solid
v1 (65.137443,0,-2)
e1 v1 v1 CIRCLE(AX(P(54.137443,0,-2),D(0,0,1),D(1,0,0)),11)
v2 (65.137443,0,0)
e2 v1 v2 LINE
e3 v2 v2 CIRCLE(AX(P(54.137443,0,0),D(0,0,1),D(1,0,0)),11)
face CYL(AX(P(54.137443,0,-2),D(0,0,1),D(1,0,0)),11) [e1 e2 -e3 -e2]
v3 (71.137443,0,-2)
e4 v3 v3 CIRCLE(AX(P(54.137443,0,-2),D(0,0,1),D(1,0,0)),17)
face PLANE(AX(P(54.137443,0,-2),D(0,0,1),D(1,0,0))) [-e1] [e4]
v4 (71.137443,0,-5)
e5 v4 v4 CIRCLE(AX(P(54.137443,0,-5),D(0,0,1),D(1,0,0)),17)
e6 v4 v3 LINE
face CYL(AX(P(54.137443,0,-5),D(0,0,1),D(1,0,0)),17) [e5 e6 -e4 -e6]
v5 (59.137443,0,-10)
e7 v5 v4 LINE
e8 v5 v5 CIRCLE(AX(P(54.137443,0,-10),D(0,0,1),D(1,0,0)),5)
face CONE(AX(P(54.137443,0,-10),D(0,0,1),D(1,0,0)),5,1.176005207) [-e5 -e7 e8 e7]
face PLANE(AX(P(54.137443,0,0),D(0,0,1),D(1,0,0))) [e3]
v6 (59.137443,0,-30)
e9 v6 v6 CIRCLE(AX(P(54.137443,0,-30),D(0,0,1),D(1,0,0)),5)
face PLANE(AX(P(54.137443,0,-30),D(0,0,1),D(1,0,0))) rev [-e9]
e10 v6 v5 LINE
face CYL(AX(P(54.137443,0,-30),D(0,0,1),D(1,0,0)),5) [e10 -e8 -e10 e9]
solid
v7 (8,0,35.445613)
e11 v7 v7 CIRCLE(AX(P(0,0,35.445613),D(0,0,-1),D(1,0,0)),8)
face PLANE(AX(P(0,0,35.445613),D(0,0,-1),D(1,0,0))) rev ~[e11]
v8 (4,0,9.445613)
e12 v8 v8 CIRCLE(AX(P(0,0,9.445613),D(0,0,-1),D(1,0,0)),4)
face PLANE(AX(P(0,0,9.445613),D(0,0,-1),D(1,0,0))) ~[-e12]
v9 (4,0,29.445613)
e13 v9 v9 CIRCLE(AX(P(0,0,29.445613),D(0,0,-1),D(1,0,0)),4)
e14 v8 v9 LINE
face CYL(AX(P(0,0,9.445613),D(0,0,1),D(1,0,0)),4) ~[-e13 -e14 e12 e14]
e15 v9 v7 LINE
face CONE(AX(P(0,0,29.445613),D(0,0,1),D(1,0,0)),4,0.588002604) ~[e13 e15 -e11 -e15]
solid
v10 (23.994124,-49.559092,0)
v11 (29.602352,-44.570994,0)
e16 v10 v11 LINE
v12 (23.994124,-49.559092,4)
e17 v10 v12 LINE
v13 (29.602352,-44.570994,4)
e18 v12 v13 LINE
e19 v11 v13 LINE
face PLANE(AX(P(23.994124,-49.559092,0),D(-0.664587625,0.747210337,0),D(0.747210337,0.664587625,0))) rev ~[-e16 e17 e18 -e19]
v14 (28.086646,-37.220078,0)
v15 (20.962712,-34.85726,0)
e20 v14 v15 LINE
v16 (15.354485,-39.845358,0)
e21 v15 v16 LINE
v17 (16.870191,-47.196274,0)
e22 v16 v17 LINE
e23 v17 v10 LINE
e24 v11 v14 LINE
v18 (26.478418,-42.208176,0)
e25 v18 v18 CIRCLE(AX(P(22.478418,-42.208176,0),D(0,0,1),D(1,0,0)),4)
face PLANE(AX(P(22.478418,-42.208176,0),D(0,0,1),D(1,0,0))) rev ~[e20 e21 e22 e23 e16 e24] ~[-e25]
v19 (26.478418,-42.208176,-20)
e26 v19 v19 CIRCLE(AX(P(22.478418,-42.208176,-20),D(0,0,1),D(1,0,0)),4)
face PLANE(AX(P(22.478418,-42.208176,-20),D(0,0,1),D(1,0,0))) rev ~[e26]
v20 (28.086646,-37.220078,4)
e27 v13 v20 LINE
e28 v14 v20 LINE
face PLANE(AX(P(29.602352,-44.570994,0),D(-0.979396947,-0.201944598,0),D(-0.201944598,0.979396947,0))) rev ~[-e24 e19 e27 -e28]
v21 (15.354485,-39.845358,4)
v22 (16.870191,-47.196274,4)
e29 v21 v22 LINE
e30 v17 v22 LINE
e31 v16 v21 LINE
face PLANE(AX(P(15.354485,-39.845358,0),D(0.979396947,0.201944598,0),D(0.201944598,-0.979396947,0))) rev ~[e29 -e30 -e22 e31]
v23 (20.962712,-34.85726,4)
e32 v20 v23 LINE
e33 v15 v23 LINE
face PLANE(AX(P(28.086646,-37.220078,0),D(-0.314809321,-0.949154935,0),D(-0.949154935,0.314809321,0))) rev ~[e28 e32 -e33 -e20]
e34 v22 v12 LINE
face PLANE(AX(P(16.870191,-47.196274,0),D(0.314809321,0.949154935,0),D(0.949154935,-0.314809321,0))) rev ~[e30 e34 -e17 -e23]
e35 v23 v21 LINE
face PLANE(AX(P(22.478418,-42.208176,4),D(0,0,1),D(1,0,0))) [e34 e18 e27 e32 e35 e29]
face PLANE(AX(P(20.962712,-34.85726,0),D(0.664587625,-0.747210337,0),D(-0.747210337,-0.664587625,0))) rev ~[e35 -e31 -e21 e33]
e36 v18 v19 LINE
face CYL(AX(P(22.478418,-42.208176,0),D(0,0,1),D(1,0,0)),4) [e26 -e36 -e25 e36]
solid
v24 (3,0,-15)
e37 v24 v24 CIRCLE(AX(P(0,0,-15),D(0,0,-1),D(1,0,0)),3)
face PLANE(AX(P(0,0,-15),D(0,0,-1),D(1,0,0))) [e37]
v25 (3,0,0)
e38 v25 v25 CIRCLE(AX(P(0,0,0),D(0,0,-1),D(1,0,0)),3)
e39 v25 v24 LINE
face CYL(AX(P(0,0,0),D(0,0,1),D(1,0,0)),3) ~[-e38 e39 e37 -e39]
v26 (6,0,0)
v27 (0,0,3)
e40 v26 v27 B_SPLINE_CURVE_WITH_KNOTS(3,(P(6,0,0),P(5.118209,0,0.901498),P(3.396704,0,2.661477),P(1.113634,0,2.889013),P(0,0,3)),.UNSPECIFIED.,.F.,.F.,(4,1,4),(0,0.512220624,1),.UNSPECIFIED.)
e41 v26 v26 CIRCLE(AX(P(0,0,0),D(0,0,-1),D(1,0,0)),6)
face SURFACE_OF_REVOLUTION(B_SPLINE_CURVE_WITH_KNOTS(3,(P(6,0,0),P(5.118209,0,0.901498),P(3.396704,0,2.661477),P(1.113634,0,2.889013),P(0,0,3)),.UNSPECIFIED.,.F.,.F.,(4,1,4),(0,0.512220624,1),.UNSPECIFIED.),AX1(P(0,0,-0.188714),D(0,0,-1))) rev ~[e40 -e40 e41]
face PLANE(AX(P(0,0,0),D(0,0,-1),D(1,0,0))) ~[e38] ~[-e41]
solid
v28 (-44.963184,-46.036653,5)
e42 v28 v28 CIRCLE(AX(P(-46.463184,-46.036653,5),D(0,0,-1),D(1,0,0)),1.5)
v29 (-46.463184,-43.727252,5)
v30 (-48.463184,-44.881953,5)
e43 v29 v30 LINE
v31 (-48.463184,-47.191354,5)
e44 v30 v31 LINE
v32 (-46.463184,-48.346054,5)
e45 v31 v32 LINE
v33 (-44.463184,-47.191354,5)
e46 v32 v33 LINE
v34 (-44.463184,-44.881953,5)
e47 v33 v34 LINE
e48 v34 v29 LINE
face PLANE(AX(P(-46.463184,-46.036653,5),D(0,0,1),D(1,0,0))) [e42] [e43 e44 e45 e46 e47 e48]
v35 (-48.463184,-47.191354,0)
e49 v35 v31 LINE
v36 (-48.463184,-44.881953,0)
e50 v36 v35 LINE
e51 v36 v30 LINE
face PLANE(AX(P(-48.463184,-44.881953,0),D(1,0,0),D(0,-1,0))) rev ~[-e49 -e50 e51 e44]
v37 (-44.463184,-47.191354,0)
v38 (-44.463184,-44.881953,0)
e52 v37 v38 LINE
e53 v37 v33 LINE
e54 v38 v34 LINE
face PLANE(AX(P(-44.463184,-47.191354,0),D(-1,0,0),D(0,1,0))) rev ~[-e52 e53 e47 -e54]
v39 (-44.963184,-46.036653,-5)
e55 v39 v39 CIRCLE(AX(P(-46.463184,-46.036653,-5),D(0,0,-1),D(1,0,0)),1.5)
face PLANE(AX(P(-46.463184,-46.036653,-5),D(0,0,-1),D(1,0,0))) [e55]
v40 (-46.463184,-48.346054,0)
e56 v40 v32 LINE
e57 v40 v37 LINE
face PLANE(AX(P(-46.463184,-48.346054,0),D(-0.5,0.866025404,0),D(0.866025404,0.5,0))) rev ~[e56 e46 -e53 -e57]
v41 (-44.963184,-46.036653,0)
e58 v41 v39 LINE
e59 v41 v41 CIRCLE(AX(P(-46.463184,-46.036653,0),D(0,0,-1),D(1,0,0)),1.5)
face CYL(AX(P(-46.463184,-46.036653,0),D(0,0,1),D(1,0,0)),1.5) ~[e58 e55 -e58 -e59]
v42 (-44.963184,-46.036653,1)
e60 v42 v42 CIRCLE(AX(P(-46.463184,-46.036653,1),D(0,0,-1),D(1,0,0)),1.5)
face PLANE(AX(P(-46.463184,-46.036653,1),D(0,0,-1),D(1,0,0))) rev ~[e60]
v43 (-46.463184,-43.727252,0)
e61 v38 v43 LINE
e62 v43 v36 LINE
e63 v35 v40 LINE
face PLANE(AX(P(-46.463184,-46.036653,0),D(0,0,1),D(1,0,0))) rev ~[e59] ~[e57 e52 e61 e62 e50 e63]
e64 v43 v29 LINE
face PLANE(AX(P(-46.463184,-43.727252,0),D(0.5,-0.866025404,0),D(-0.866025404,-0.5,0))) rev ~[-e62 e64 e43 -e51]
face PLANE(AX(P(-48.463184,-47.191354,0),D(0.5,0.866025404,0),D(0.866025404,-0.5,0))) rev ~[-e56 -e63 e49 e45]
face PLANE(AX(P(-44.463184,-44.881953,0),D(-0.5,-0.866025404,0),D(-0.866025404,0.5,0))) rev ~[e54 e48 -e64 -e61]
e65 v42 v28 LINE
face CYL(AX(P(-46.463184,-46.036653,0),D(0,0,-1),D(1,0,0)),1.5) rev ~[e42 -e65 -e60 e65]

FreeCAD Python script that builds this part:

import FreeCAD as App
import Part
import Sketcher
Q = App.Units.Quantity


def add_polygon(sketch, points):
    """Adds a closed chain of lines whose ends are joined by coincident constraints."""
    first, n = sketch.GeometryCount, len(points)
    for a, b in zip(points, points[1:] + points[:1]):
        sketch.addGeometry(Part.LineSegment(App.Vector(*a, 0), App.Vector(*b, 0)), False)
    for i in range(n):
        sketch.addConstraint(Sketcher.Constraint("Coincident", first + i, 2, first + (i + 1) % n, 1))

doc = App.newDocument("Part")
body = doc.addObject("PartDesign::Body", "Body")

sketch1 = body.newObject("Sketcher::SketchObject", "Sketch")
sketch1.AttachmentSupport = (doc.getObject("XZ_Plane"), [""])
sketch1.MapMode = "FlatFace"
sketch1.addGeometry([
    Part.BSplineCurve([App.Vector(6, 0, 0), App.Vector(5.118209, 0.901498, 0), App.Vector(3.396704, 2.661477, 0), App.Vector(1.113634, 2.889013, 0), App.Vector(0, 3, 0)], [4, 1, 4], [0, 0.512220624, 1], False, 3, [1, 1, 1, 1, 1], False),
    Part.LineSegment(App.Vector(0, 3, 0), App.Vector(0, 0, 0)),
    Part.LineSegment(App.Vector(0, 0, 0), App.Vector(6, 0, 0)),
], False)
sketch1.addConstraint([
    Sketcher.Constraint("Block", 0),
    Sketcher.Constraint("Coincident", 0, 2, 1, 1),
    Sketcher.Constraint("Coincident", 1, 2, 2, 1),
    Sketcher.Constraint("Coincident", 2, 2, 0, 1),
    Sketcher.Constraint("Vertical", 1),
    Sketcher.Constraint("Horizontal", 2),
])
revolution = body.newObject("PartDesign::Revolution", "Revolution")
revolution.Profile = sketch1
revolution.ReferenceAxis = (sketch1, ["V_Axis"])
revolution.Angle = 360

sketch2 = body.newObject("Sketcher::SketchObject", "Sketch001")
sketch2.AttachmentSupport = (doc.getObject("XY_Plane"), [""])
sketch2.MapMode = "FlatFace"
sketch2.addGeometry(Part.Circle(App.Vector(0, 0, 0), App.Vector(0, 0, 1), 3), False)
sketch2.addConstraint([
    Sketcher.Constraint("Coincident", 0, 3, -1, 1),
    Sketcher.Constraint("Diameter", 0, Q("6 mm")),
])
pad1 = body.newObject("PartDesign::Pad", "Pad")
pad1.Profile = sketch2
pad1.Length = 15
pad1.Reversed = True
body2 = doc.addObject("PartDesign::Body", "Body001")

sketch3 = body2.newObject("Sketcher::SketchObject", "Sketch002")
sketch3.AttachmentSupport = (doc.getObject("XZ_Plane001"), [""])
sketch3.MapMode = "FlatFace"
add_polygon(sketch3, [(8, 35.4), (0, 35.4), (0, 9.4), (4, 9.4), (4, 29.4)])
sketch3.addConstraint([
    Sketcher.Constraint("Horizontal", 0),
    Sketcher.Constraint("Vertical", 1),
    Sketcher.Constraint("Horizontal", 2),
    Sketcher.Constraint("Vertical", 3),
    Sketcher.Constraint("PointOnObject", 0, 2, -2),
    Sketcher.Constraint("DistanceX", 0, 2, 0, 1, Q("8 mm")),
    Sketcher.Constraint("DistanceX", 2, 1, 2, 2, Q("4 mm")),
    Sketcher.Constraint("DistanceY", 1, 2, 1, 1, Q("26 mm")),
    Sketcher.Constraint("DistanceY", 3, 1, 3, 2, Q("20 mm")),
    Sketcher.Constraint("DistanceY", -1, 1, 0, 2, Q("35.445613 mm")),
])
revolution2 = body2.newObject("PartDesign::Revolution", "Revolution001")
revolution2.Profile = sketch3
revolution2.ReferenceAxis = (sketch3, ["V_Axis"])
revolution2.Angle = 360
body3 = doc.addObject("PartDesign::Body", "Body002")

sketch4 = body3.newObject("Sketcher::SketchObject", "Sketch003")
sketch4.AttachmentSupport = (doc.getObject("XY_Plane002"), [""])
sketch4.MapMode = "FlatFace"
sketch4.addGeometry(Part.Circle(App.Vector(22.5, -42.2, 0), App.Vector(0, 0, 1), 4), False)
sketch4.addConstraint([
    Sketcher.Constraint("Diameter", 0, Q("8 mm")),
    Sketcher.Constraint("DistanceX", -1, 1, 0, 3, Q("22.478418 mm")),
    Sketcher.Constraint("DistanceY", 0, 3, -1, 1, Q("42.208176 mm")),
])
pad2 = body3.newObject("PartDesign::Pad", "Pad001")
pad2.Profile = sketch4
pad2.Length = 20
pad2.Reversed = True

sketch5 = body3.newObject("Sketcher::SketchObject", "Sketch004")
sketch5.AttachmentSupport = (doc.getObject("XY_Plane002"), [""])
sketch5.MapMode = "FlatFace"
add_polygon(sketch5, [(21, -35), (15, -40), (17, -47), (24, -50), (30, -45), (28, -37)])
sketch5.addConstraint([
    Sketcher.Constraint("Parallel", 0, 3),
    Sketcher.Constraint("Parallel", 1, 4),
    Sketcher.Constraint("Parallel", 2, 5),
    Sketcher.Constraint("Equal", 0, 1),
    Sketcher.Constraint("Equal", 1, 2),
    Sketcher.Constraint("Equal", 2, 3),
    Sketcher.Constraint("DistanceX", -1, 1, 1, 2, Q("16.870191 mm")),
    Sketcher.Constraint("DistanceX", -1, 1, 3, 2, Q("29.602352 mm")),
    Sketcher.Constraint("DistanceY", 4, 2, -1, 1, Q("37.220078 mm")),
    Sketcher.Constraint("DistanceY", 5, 2, -1, 1, Q("34.85726 mm")),
    Sketcher.Constraint("DistanceX", 0, 2, 2, 2, Q("8.639639 mm")),
    Sketcher.Constraint("DistanceY", 1, 2, 3, 2, Q("2.62528 mm")),
])
pad3 = body3.newObject("PartDesign::Pad", "Pad002")
pad3.Profile = sketch5
pad3.Length = 4
body4 = doc.addObject("PartDesign::Body", "Body003")

sketch6 = body4.newObject("Sketcher::SketchObject", "Sketch005")
sketch6.AttachmentSupport = (doc.getObject("XY_Plane003"), [""])
sketch6.MapMode = "FlatFace"
add_polygon(sketch6, [(-44.5, -47.2), (-44.5, -44.9), (-46.5, -43.7), (-48.5, -44.9), (-48.5, -47.2), (-46.5, -48.3)])
sketch6.addConstraint([
    Sketcher.Constraint("Vertical", 0),
    Sketcher.Constraint("Vertical", 3),
    Sketcher.Constraint("Parallel", 1, 4),
    Sketcher.Constraint("Parallel", 2, 5),
    Sketcher.Constraint("Horizontal", 0, 2, 2, 2),
    Sketcher.Constraint("Horizontal", 3, 2, 5, 2),
    Sketcher.Constraint("Vertical", 1, 2, 4, 2),
    Sketcher.Constraint("Angle", 1, Q("150 deg")),
    Sketcher.Constraint("DistanceX", 1, 2, 0, 2, Q("2 mm")),
    Sketcher.Constraint("DistanceY", 0, 1, 0, 2, Q("2.309401 mm")),
    Sketcher.Constraint("DistanceX", 0, 2, -1, 1, Q("44.463184 mm")),
    Sketcher.Constraint("DistanceY", 0, 2, -1, 1, Q("44.881953 mm")),
])
pad4 = body4.newObject("PartDesign::Pad", "Pad003")
pad4.Profile = sketch6
pad4.Length = 5

sketch7 = body4.newObject("Sketcher::SketchObject", "Sketch006")
sketch7.AttachmentSupport = (doc.getObject("XY_Plane003"), [""])
sketch7.MapMode = "FlatFace"
sketch7.addGeometry(Part.Circle(App.Vector(-46.5, -46, 0), App.Vector(0, 0, 1), 1.5), False)
sketch7.addConstraint([
    Sketcher.Constraint("Diameter", 0, Q("3 mm")),
    Sketcher.Constraint("DistanceX", 0, 3, -1, 1, Q("46.463184 mm")),
    Sketcher.Constraint("DistanceY", 0, 3, -1, 1, Q("46.036653 mm")),
])
pocket1 = body4.newObject("PartDesign::Pocket", "Pocket")
pocket1.Profile = sketch7
pocket1.Length = 6
pocket1.Reversed = True

sketch8 = body4.newObject("Sketcher::SketchObject", "Sketch007")
sketch8.AttachmentSupport = (doc.getObject("XY_Plane003"), [""])
sketch8.MapMode = "FlatFace"
sketch8.addGeometry(Part.Circle(App.Vector(-46.5, -46, 0), App.Vector(0, 0, 1), 1.5), False)
sketch8.addConstraint([
    Sketcher.Constraint("Diameter", 0, Q("3 mm")),
    Sketcher.Constraint("DistanceX", 0, 3, -1, 1, Q("46.463184 mm")),
    Sketcher.Constraint("DistanceY", 0, 3, -1, 1, Q("46.036653 mm")),
])
pad5 = body4.newObject("PartDesign::Pad", "Pad004")
pad5.Profile = sketch8
pad5.Type = "TwoLengths"
pad5.Length = 5
pad5.Length2 = 1
pad5.Reversed = True
body5 = doc.addObject("PartDesign::Body", "Body004")

sketch9 = body5.newObject("Sketcher::SketchObject", "Sketch008")
sketch9.AttachmentSupport = (doc.getObject("XZ_Plane004"), [""])
sketch9.MapMode = "FlatFace"
add_polygon(sketch9, [(65.1, 0), (54.1, 0), (54.1, -30), (59.1, -30), (59.1, -10), (71.1, -5), (71.1, -2), (65.1, -2)])
sketch9.addGeometry(Part.LineSegment(App.Vector(54.1, -30, 0), App.Vector(54.1, 0, 0)), True)
sketch9.addConstraint([
    Sketcher.Constraint("Horizontal", 0),
    Sketcher.Constraint("Vertical", 1),
    Sketcher.Constraint("Horizontal", 2),
    Sketcher.Constraint("Vertical", 3),
    Sketcher.Constraint("Vertical", 5),
    Sketcher.Constraint("Horizontal", 6),
    Sketcher.Constraint("Vertical", 7),
    Sketcher.Constraint("Vertical", 8),
    Sketcher.Constraint("Coincident", 8, 1, 1, 2),
    Sketcher.Constraint("PointOnObject", 0, 2, -1),
    Sketcher.Constraint("PointOnObject", 8, 2, -1),
    Sketcher.Constraint("DistanceX", 0, 2, 0, 1, Q("11 mm")),
    Sketcher.Constraint("DistanceX", 2, 1, 2, 2, Q("5 mm")),
    Sketcher.Constraint("DistanceX", 6, 2, 6, 1, Q("6 mm")),
    Sketcher.Constraint("DistanceY", 1, 2, 1, 1, Q("30 mm")),
    Sketcher.Constraint("DistanceY", 3, 1, 3, 2, Q("20 mm")),
    Sketcher.Constraint("DistanceY", 5, 1, 5, 2, Q("3 mm")),
    Sketcher.Constraint("DistanceY", 7, 1, 7, 2, Q("2 mm")),
    Sketcher.Constraint("DistanceX", -1, 1, 0, 2, Q("54.137443 mm")),
])
revolution3 = body5.newObject("PartDesign::Revolution", "Revolution002")
revolution3.Profile = sketch9
revolution3.ReferenceAxis = (sketch9, ["Axis0"])
revolution3.Angle = 360

doc.recompute()
